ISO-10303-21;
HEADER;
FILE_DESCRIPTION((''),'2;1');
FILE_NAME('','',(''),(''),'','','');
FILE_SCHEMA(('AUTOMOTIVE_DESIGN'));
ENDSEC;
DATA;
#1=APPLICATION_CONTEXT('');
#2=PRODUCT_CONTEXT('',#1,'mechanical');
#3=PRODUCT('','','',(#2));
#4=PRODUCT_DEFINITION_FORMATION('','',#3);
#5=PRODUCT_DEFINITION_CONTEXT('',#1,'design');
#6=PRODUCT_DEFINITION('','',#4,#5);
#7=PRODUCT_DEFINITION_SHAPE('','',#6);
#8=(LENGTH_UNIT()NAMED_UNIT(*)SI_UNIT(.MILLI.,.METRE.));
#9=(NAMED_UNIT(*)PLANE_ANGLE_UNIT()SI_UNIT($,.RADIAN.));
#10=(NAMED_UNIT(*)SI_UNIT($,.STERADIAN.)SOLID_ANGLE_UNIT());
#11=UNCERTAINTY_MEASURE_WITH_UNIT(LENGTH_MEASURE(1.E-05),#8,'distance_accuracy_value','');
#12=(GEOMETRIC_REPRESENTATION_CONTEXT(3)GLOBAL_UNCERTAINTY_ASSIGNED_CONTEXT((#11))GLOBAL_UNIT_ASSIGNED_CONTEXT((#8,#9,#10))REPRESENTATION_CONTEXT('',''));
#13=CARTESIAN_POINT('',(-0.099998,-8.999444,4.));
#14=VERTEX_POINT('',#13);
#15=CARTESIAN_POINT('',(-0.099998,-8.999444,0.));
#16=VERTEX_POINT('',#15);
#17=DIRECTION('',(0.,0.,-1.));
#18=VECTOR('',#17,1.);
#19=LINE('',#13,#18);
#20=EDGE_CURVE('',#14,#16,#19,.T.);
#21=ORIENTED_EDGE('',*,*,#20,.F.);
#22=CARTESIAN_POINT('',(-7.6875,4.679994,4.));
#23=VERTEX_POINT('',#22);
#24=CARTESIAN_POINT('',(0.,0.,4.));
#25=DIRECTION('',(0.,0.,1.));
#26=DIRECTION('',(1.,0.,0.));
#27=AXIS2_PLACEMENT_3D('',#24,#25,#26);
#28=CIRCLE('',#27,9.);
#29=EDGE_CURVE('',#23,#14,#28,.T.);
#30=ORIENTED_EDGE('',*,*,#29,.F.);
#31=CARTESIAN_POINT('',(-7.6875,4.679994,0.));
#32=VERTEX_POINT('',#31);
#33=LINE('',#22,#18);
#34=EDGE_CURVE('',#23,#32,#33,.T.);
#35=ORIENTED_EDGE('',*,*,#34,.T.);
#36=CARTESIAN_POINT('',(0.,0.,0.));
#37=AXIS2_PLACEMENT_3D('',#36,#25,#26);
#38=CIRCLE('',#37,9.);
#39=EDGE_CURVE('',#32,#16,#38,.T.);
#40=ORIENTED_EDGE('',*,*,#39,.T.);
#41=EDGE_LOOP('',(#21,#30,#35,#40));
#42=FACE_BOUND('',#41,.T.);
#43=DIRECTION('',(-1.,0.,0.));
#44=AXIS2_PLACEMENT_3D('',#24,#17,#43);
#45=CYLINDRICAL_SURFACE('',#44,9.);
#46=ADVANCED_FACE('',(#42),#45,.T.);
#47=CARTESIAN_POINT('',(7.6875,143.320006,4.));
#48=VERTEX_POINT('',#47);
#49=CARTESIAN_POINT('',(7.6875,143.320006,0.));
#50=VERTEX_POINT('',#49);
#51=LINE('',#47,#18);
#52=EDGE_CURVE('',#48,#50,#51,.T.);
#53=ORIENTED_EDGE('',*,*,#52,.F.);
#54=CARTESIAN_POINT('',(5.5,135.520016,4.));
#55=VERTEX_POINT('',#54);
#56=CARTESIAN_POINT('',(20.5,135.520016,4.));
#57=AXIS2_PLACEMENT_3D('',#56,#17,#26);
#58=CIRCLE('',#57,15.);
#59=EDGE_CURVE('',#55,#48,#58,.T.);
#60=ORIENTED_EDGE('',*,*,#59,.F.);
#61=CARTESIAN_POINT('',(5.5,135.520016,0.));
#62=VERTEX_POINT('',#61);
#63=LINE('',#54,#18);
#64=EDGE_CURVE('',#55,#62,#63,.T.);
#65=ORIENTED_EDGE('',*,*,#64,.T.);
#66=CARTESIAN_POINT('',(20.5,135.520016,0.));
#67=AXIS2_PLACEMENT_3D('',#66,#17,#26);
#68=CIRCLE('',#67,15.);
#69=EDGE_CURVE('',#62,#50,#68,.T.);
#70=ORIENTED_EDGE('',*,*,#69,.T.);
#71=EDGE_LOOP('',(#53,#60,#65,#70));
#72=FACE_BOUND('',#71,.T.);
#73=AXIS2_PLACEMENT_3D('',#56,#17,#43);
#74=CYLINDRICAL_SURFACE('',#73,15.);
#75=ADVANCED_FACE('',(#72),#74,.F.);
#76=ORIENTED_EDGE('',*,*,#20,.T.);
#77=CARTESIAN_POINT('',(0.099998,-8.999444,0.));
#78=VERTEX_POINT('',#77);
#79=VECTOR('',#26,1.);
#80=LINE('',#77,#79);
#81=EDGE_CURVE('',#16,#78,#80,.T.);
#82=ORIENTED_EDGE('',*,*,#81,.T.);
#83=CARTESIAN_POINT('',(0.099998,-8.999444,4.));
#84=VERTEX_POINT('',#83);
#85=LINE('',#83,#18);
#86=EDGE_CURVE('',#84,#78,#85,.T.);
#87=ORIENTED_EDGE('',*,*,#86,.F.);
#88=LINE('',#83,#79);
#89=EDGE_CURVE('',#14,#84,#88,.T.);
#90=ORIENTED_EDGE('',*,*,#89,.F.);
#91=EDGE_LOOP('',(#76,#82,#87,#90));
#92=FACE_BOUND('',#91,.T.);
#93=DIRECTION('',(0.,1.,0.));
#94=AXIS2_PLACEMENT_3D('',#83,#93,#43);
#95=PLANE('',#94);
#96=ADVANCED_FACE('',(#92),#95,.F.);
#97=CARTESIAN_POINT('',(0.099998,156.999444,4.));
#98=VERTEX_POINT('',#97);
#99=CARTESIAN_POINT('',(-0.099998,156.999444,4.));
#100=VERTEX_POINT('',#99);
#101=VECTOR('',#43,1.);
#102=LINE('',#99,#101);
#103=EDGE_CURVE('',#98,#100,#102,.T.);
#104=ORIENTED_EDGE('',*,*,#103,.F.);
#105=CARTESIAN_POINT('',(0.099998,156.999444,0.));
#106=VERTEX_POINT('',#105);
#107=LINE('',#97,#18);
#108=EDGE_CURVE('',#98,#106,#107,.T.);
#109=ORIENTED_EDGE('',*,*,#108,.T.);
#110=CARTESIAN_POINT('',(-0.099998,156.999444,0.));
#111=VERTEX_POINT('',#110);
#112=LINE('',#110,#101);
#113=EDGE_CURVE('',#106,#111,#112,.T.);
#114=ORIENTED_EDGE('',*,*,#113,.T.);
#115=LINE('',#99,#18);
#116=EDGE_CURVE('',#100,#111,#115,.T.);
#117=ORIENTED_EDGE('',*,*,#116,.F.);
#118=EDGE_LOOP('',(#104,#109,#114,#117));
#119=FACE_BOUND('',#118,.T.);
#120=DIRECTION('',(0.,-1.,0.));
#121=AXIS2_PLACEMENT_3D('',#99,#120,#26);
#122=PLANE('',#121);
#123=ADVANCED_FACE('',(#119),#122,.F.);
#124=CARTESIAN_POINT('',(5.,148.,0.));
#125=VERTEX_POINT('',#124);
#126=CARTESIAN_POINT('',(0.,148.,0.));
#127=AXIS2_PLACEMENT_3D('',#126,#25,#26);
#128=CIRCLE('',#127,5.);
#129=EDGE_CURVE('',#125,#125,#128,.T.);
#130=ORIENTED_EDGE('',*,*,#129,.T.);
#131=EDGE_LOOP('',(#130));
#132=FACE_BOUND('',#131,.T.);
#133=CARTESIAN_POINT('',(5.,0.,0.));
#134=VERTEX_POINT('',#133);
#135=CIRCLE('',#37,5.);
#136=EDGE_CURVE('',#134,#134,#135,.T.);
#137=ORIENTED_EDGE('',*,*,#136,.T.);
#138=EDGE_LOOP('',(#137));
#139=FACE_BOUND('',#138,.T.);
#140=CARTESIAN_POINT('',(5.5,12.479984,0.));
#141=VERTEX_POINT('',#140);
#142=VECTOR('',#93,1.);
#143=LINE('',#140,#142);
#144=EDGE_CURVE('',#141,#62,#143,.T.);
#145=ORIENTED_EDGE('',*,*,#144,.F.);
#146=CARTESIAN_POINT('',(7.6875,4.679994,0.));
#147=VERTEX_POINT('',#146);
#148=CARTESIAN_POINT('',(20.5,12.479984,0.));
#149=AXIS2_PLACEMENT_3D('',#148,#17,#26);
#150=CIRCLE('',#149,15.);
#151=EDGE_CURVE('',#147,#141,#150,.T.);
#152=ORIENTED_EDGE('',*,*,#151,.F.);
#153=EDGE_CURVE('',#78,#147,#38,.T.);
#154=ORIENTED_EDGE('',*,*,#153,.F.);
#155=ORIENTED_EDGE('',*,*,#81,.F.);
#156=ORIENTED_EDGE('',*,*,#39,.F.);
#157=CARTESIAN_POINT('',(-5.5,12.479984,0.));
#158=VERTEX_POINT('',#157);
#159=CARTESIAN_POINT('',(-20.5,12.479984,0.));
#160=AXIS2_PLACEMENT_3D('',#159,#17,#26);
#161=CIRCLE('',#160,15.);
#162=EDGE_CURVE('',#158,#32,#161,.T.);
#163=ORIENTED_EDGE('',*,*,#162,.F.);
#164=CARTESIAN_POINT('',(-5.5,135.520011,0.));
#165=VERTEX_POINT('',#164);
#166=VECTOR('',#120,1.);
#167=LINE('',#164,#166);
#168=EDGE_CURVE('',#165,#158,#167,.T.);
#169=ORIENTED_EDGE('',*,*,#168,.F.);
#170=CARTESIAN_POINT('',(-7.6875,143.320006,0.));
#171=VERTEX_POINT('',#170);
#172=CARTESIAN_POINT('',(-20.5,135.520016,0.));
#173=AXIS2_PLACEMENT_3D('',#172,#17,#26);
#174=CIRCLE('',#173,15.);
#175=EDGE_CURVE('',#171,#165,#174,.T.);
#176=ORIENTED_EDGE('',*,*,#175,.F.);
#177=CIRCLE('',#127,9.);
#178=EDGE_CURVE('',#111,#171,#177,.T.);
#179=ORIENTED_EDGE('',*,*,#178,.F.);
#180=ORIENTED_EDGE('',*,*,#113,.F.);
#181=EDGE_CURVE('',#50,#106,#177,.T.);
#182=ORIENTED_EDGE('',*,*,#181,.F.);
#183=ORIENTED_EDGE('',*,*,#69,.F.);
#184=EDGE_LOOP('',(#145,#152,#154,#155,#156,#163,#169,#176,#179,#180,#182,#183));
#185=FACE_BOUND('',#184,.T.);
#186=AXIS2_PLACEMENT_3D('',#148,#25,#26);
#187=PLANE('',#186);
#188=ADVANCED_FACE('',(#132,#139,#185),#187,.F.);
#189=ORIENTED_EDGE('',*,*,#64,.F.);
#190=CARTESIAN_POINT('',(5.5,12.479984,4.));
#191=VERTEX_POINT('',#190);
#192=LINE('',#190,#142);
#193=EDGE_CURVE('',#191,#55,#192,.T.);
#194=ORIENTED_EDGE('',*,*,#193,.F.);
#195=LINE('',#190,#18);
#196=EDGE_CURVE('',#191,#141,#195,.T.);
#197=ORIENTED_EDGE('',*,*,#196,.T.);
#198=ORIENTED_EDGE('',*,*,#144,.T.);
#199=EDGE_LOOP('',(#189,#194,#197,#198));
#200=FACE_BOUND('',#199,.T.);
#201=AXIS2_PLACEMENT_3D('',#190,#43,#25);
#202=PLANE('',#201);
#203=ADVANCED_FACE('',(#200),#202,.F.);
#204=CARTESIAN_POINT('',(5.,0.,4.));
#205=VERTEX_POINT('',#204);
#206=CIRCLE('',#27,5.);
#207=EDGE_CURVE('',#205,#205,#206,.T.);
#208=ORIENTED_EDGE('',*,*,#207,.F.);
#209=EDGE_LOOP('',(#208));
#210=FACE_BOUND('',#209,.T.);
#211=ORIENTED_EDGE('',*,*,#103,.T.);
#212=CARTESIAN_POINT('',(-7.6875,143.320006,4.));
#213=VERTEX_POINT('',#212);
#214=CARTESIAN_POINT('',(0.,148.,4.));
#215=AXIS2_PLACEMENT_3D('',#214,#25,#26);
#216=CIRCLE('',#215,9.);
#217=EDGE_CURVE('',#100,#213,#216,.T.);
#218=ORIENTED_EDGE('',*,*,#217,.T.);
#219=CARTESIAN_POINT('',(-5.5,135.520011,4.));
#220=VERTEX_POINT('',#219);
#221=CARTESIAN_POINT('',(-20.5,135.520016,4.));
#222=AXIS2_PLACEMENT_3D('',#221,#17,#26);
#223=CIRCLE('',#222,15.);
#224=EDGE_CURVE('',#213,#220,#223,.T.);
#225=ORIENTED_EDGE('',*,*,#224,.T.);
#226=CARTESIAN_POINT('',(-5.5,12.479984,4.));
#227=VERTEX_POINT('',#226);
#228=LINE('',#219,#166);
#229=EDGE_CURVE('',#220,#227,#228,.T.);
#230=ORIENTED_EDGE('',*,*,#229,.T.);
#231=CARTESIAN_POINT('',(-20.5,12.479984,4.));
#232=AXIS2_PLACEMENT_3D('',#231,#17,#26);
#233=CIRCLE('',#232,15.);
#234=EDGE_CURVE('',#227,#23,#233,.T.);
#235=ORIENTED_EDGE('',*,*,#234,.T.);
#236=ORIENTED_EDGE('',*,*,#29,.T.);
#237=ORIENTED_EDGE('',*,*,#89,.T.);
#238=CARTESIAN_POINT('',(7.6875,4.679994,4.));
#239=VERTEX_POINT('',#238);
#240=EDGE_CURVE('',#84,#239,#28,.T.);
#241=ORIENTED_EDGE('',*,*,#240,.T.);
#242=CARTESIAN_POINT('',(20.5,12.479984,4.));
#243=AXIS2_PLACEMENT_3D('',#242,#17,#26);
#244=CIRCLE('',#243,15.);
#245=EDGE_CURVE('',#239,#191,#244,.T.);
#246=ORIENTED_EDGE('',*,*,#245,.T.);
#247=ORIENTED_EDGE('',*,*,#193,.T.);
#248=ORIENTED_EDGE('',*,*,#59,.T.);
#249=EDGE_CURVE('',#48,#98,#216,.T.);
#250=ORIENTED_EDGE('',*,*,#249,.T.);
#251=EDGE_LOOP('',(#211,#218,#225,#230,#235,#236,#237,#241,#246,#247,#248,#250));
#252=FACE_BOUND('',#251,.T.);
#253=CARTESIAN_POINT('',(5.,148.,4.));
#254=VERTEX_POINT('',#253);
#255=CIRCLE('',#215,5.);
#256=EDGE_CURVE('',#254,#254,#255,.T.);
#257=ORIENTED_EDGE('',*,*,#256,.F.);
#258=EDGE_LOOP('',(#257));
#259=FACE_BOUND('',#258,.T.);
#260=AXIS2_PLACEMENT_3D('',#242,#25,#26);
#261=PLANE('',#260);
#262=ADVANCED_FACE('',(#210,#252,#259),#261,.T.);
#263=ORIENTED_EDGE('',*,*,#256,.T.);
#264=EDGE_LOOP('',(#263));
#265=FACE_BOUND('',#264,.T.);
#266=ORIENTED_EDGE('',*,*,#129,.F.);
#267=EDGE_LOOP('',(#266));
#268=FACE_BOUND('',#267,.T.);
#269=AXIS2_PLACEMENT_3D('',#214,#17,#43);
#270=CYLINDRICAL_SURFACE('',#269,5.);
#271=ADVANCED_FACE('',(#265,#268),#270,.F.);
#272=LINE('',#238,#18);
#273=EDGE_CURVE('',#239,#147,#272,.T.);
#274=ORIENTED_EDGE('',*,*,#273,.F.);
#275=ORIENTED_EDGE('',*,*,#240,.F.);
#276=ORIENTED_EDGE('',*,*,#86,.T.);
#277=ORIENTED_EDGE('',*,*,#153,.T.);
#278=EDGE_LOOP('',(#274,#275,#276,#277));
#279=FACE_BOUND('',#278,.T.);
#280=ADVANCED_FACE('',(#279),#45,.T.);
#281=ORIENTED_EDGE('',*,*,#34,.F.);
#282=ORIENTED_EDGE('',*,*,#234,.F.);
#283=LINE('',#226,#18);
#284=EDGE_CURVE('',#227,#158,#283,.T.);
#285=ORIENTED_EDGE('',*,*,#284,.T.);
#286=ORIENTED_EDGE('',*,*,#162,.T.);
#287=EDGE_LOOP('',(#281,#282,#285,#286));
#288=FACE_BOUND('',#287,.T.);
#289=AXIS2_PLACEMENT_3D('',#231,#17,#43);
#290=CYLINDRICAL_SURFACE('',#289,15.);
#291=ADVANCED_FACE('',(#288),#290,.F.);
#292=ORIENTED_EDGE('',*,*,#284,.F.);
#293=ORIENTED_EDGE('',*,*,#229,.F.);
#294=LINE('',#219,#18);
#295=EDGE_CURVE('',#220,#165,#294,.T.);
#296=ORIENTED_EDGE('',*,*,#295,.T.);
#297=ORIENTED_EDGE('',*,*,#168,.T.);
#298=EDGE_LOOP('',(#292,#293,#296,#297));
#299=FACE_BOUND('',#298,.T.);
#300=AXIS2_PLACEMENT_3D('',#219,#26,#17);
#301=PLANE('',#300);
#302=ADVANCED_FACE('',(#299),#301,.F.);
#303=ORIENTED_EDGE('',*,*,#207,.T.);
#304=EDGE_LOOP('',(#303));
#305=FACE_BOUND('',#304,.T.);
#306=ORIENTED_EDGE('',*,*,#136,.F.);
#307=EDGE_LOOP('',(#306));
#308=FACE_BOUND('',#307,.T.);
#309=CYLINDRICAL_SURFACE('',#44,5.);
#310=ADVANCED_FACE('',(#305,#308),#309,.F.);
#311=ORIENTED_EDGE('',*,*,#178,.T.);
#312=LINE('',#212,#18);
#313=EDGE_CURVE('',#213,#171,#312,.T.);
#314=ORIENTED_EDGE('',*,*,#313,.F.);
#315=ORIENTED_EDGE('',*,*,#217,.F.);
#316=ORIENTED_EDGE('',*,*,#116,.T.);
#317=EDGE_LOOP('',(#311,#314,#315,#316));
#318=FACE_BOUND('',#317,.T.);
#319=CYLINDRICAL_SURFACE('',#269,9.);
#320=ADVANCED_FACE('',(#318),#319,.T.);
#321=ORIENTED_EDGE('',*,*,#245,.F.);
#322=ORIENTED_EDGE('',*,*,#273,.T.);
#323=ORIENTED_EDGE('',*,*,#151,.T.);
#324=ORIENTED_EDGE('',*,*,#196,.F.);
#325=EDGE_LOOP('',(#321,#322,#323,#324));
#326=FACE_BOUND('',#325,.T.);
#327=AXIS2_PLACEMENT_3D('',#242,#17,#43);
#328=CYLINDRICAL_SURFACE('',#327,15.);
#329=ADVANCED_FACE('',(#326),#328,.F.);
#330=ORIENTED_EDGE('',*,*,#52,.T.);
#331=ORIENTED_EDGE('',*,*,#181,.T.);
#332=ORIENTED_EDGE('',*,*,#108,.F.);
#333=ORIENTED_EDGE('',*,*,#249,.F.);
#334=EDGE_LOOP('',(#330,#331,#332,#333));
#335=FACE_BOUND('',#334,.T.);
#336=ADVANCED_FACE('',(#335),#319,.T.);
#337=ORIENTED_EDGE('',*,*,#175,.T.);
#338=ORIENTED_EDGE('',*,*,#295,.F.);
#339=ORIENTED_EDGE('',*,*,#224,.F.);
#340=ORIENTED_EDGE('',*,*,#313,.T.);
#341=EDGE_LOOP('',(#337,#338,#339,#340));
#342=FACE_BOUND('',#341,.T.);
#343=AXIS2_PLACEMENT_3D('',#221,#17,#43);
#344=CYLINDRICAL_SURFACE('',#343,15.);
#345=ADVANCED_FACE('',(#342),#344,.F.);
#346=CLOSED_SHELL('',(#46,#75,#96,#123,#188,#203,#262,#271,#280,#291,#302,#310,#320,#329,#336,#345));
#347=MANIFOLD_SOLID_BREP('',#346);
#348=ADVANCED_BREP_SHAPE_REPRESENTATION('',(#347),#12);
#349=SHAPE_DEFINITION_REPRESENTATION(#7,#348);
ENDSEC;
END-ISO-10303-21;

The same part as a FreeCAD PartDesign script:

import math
import FreeCAD as App
import Part
import Sketcher

V = App.Vector

doc = App.newDocument("Part")
body = doc.addObject("PartDesign::Body", "Body")

# Sketch on XY plane
sketch1 = doc.addObject("Sketcher::SketchObject", "Sketch")
body.addObject(sketch1)
sketch1.AttachmentSupport = (doc.XY_Plane, [""])
sketch1.MapMode = "FlatFace"
sketch1.addGeometry([
    Part.LineSegment(V(-5.5, 135.52, 0), V(-5.5, 12.48, 0)),  # 0
    Part.ArcOfCircle(Part.Circle(V(-20.5, 12.48, 0), V(0, 0, 1), 15), math.radians(-31), math.radians(0)),  # 1
    Part.ArcOfCircle(Part.Circle(V(0, 0, 0), V(0, 0, 1), 9), math.radians(149), math.radians(269)),  # 2
    Part.LineSegment(V(-0.1, -9, 0), V(0.1, -9, 0)),  # 3
    Part.ArcOfCircle(Part.Circle(V(0, 0, 0), V(0, 0, 1), 9), math.radians(-89), math.radians(31)),  # 4
    Part.ArcOfCircle(Part.Circle(V(20.5, 12.48, 0), V(0, 0, 1), 15), math.radians(-180), math.radians(-149)),  # 5
    Part.LineSegment(V(5.5, 12.48, 0), V(5.5, 135.52, 0)),  # 6
    Part.ArcOfCircle(Part.Circle(V(20.5, 135.52, 0), V(0, 0, 1), 15), math.radians(149), math.radians(180)),  # 7
    Part.ArcOfCircle(Part.Circle(V(0, 148, 0), V(0, 0, 1), 9), math.radians(-31), math.radians(89)),  # 8
    Part.LineSegment(V(0.1, 157, 0), V(-0.1, 157, 0)),  # 9
    Part.ArcOfCircle(Part.Circle(V(0, 148, 0), V(0, 0, 1), 9), math.radians(91), math.radians(211)),  # 10
    Part.ArcOfCircle(Part.Circle(V(-20.5, 135.52, 0), V(0, 0, 1), 15), math.radians(0), math.radians(31)),  # 11
    Part.Circle(V(0, 0, 0), V(0, 0, 1), 5),  # 12
    Part.Circle(V(0, 148, 0), V(0, 0, 1), 5),  # 13
], False)
sketch1.addConstraint([
    Sketcher.Constraint("Tangent", 0, 2, 1, 2),
    Sketcher.Constraint("Tangent", 1, 1, 2, 1),
    Sketcher.Constraint("Coincident", 2, 2, 3, 1),
    Sketcher.Constraint("Coincident", 3, 2, 4, 1),
    Sketcher.Constraint("Tangent", 4, 2, 5, 2),
    Sketcher.Constraint("Tangent", 5, 1, 6, 1),
    Sketcher.Constraint("Tangent", 6, 2, 7, 2),
    Sketcher.Constraint("Tangent", 7, 1, 8, 1),
    Sketcher.Constraint("Coincident", 8, 2, 9, 1),
    Sketcher.Constraint("Coincident", 9, 2, 10, 1),
    Sketcher.Constraint("Tangent", 10, 2, 11, 2),
    Sketcher.Constraint("Tangent", 11, 1, 0, 1),
    Sketcher.Constraint("Vertical", 0),
    Sketcher.Constraint("Horizontal", 3),
    Sketcher.Constraint("Vertical", 6),
    Sketcher.Constraint("Horizontal", 9),
    Sketcher.Constraint("Coincident", 2, 3, -1, 1),
    Sketcher.Constraint("Coincident", 4, 3, -1, 1),
    Sketcher.Constraint("Coincident", 12, 3, -1, 1),
    Sketcher.Constraint("Coincident", 10, 3, 8, 3),
    Sketcher.Constraint("Coincident", 13, 3, 8, 3),
    Sketcher.Constraint("Equal", 2, 4),
    Sketcher.Constraint("Equal", 1, 5),
    Sketcher.Constraint("Equal", 5, 7),
    Sketcher.Constraint("Equal", 4, 8),
    Sketcher.Constraint("Equal", 8, 10),
    Sketcher.Constraint("Equal", 7, 11),
    Sketcher.Constraint("Equal", 12, 13),
    Sketcher.Constraint("Symmetric", 7, 3, 11, 3, -2),
    Sketcher.Constraint("Vertical", 3, 2, 8, 2),
    Sketcher.Constraint("Diameter", 12, 10.0),
    Sketcher.Constraint("Radius", 1, 15.0),
    Sketcher.Constraint("Radius", 2, 9.0),
    Sketcher.Constraint("DistanceY", -1, 1, 8, 3, 148.0),
    Sketcher.Constraint("DistanceX", 1, 3, 5, 3, 41.0),
    Sketcher.Constraint("DistanceX", 2, 2, -1, 1, 0.099998),
])
pad1 = doc.addObject("PartDesign::Pad", "Pad")
body.addObject(pad1)
pad1.Profile = sketch1
pad1.Length = 4

doc.recompute()
